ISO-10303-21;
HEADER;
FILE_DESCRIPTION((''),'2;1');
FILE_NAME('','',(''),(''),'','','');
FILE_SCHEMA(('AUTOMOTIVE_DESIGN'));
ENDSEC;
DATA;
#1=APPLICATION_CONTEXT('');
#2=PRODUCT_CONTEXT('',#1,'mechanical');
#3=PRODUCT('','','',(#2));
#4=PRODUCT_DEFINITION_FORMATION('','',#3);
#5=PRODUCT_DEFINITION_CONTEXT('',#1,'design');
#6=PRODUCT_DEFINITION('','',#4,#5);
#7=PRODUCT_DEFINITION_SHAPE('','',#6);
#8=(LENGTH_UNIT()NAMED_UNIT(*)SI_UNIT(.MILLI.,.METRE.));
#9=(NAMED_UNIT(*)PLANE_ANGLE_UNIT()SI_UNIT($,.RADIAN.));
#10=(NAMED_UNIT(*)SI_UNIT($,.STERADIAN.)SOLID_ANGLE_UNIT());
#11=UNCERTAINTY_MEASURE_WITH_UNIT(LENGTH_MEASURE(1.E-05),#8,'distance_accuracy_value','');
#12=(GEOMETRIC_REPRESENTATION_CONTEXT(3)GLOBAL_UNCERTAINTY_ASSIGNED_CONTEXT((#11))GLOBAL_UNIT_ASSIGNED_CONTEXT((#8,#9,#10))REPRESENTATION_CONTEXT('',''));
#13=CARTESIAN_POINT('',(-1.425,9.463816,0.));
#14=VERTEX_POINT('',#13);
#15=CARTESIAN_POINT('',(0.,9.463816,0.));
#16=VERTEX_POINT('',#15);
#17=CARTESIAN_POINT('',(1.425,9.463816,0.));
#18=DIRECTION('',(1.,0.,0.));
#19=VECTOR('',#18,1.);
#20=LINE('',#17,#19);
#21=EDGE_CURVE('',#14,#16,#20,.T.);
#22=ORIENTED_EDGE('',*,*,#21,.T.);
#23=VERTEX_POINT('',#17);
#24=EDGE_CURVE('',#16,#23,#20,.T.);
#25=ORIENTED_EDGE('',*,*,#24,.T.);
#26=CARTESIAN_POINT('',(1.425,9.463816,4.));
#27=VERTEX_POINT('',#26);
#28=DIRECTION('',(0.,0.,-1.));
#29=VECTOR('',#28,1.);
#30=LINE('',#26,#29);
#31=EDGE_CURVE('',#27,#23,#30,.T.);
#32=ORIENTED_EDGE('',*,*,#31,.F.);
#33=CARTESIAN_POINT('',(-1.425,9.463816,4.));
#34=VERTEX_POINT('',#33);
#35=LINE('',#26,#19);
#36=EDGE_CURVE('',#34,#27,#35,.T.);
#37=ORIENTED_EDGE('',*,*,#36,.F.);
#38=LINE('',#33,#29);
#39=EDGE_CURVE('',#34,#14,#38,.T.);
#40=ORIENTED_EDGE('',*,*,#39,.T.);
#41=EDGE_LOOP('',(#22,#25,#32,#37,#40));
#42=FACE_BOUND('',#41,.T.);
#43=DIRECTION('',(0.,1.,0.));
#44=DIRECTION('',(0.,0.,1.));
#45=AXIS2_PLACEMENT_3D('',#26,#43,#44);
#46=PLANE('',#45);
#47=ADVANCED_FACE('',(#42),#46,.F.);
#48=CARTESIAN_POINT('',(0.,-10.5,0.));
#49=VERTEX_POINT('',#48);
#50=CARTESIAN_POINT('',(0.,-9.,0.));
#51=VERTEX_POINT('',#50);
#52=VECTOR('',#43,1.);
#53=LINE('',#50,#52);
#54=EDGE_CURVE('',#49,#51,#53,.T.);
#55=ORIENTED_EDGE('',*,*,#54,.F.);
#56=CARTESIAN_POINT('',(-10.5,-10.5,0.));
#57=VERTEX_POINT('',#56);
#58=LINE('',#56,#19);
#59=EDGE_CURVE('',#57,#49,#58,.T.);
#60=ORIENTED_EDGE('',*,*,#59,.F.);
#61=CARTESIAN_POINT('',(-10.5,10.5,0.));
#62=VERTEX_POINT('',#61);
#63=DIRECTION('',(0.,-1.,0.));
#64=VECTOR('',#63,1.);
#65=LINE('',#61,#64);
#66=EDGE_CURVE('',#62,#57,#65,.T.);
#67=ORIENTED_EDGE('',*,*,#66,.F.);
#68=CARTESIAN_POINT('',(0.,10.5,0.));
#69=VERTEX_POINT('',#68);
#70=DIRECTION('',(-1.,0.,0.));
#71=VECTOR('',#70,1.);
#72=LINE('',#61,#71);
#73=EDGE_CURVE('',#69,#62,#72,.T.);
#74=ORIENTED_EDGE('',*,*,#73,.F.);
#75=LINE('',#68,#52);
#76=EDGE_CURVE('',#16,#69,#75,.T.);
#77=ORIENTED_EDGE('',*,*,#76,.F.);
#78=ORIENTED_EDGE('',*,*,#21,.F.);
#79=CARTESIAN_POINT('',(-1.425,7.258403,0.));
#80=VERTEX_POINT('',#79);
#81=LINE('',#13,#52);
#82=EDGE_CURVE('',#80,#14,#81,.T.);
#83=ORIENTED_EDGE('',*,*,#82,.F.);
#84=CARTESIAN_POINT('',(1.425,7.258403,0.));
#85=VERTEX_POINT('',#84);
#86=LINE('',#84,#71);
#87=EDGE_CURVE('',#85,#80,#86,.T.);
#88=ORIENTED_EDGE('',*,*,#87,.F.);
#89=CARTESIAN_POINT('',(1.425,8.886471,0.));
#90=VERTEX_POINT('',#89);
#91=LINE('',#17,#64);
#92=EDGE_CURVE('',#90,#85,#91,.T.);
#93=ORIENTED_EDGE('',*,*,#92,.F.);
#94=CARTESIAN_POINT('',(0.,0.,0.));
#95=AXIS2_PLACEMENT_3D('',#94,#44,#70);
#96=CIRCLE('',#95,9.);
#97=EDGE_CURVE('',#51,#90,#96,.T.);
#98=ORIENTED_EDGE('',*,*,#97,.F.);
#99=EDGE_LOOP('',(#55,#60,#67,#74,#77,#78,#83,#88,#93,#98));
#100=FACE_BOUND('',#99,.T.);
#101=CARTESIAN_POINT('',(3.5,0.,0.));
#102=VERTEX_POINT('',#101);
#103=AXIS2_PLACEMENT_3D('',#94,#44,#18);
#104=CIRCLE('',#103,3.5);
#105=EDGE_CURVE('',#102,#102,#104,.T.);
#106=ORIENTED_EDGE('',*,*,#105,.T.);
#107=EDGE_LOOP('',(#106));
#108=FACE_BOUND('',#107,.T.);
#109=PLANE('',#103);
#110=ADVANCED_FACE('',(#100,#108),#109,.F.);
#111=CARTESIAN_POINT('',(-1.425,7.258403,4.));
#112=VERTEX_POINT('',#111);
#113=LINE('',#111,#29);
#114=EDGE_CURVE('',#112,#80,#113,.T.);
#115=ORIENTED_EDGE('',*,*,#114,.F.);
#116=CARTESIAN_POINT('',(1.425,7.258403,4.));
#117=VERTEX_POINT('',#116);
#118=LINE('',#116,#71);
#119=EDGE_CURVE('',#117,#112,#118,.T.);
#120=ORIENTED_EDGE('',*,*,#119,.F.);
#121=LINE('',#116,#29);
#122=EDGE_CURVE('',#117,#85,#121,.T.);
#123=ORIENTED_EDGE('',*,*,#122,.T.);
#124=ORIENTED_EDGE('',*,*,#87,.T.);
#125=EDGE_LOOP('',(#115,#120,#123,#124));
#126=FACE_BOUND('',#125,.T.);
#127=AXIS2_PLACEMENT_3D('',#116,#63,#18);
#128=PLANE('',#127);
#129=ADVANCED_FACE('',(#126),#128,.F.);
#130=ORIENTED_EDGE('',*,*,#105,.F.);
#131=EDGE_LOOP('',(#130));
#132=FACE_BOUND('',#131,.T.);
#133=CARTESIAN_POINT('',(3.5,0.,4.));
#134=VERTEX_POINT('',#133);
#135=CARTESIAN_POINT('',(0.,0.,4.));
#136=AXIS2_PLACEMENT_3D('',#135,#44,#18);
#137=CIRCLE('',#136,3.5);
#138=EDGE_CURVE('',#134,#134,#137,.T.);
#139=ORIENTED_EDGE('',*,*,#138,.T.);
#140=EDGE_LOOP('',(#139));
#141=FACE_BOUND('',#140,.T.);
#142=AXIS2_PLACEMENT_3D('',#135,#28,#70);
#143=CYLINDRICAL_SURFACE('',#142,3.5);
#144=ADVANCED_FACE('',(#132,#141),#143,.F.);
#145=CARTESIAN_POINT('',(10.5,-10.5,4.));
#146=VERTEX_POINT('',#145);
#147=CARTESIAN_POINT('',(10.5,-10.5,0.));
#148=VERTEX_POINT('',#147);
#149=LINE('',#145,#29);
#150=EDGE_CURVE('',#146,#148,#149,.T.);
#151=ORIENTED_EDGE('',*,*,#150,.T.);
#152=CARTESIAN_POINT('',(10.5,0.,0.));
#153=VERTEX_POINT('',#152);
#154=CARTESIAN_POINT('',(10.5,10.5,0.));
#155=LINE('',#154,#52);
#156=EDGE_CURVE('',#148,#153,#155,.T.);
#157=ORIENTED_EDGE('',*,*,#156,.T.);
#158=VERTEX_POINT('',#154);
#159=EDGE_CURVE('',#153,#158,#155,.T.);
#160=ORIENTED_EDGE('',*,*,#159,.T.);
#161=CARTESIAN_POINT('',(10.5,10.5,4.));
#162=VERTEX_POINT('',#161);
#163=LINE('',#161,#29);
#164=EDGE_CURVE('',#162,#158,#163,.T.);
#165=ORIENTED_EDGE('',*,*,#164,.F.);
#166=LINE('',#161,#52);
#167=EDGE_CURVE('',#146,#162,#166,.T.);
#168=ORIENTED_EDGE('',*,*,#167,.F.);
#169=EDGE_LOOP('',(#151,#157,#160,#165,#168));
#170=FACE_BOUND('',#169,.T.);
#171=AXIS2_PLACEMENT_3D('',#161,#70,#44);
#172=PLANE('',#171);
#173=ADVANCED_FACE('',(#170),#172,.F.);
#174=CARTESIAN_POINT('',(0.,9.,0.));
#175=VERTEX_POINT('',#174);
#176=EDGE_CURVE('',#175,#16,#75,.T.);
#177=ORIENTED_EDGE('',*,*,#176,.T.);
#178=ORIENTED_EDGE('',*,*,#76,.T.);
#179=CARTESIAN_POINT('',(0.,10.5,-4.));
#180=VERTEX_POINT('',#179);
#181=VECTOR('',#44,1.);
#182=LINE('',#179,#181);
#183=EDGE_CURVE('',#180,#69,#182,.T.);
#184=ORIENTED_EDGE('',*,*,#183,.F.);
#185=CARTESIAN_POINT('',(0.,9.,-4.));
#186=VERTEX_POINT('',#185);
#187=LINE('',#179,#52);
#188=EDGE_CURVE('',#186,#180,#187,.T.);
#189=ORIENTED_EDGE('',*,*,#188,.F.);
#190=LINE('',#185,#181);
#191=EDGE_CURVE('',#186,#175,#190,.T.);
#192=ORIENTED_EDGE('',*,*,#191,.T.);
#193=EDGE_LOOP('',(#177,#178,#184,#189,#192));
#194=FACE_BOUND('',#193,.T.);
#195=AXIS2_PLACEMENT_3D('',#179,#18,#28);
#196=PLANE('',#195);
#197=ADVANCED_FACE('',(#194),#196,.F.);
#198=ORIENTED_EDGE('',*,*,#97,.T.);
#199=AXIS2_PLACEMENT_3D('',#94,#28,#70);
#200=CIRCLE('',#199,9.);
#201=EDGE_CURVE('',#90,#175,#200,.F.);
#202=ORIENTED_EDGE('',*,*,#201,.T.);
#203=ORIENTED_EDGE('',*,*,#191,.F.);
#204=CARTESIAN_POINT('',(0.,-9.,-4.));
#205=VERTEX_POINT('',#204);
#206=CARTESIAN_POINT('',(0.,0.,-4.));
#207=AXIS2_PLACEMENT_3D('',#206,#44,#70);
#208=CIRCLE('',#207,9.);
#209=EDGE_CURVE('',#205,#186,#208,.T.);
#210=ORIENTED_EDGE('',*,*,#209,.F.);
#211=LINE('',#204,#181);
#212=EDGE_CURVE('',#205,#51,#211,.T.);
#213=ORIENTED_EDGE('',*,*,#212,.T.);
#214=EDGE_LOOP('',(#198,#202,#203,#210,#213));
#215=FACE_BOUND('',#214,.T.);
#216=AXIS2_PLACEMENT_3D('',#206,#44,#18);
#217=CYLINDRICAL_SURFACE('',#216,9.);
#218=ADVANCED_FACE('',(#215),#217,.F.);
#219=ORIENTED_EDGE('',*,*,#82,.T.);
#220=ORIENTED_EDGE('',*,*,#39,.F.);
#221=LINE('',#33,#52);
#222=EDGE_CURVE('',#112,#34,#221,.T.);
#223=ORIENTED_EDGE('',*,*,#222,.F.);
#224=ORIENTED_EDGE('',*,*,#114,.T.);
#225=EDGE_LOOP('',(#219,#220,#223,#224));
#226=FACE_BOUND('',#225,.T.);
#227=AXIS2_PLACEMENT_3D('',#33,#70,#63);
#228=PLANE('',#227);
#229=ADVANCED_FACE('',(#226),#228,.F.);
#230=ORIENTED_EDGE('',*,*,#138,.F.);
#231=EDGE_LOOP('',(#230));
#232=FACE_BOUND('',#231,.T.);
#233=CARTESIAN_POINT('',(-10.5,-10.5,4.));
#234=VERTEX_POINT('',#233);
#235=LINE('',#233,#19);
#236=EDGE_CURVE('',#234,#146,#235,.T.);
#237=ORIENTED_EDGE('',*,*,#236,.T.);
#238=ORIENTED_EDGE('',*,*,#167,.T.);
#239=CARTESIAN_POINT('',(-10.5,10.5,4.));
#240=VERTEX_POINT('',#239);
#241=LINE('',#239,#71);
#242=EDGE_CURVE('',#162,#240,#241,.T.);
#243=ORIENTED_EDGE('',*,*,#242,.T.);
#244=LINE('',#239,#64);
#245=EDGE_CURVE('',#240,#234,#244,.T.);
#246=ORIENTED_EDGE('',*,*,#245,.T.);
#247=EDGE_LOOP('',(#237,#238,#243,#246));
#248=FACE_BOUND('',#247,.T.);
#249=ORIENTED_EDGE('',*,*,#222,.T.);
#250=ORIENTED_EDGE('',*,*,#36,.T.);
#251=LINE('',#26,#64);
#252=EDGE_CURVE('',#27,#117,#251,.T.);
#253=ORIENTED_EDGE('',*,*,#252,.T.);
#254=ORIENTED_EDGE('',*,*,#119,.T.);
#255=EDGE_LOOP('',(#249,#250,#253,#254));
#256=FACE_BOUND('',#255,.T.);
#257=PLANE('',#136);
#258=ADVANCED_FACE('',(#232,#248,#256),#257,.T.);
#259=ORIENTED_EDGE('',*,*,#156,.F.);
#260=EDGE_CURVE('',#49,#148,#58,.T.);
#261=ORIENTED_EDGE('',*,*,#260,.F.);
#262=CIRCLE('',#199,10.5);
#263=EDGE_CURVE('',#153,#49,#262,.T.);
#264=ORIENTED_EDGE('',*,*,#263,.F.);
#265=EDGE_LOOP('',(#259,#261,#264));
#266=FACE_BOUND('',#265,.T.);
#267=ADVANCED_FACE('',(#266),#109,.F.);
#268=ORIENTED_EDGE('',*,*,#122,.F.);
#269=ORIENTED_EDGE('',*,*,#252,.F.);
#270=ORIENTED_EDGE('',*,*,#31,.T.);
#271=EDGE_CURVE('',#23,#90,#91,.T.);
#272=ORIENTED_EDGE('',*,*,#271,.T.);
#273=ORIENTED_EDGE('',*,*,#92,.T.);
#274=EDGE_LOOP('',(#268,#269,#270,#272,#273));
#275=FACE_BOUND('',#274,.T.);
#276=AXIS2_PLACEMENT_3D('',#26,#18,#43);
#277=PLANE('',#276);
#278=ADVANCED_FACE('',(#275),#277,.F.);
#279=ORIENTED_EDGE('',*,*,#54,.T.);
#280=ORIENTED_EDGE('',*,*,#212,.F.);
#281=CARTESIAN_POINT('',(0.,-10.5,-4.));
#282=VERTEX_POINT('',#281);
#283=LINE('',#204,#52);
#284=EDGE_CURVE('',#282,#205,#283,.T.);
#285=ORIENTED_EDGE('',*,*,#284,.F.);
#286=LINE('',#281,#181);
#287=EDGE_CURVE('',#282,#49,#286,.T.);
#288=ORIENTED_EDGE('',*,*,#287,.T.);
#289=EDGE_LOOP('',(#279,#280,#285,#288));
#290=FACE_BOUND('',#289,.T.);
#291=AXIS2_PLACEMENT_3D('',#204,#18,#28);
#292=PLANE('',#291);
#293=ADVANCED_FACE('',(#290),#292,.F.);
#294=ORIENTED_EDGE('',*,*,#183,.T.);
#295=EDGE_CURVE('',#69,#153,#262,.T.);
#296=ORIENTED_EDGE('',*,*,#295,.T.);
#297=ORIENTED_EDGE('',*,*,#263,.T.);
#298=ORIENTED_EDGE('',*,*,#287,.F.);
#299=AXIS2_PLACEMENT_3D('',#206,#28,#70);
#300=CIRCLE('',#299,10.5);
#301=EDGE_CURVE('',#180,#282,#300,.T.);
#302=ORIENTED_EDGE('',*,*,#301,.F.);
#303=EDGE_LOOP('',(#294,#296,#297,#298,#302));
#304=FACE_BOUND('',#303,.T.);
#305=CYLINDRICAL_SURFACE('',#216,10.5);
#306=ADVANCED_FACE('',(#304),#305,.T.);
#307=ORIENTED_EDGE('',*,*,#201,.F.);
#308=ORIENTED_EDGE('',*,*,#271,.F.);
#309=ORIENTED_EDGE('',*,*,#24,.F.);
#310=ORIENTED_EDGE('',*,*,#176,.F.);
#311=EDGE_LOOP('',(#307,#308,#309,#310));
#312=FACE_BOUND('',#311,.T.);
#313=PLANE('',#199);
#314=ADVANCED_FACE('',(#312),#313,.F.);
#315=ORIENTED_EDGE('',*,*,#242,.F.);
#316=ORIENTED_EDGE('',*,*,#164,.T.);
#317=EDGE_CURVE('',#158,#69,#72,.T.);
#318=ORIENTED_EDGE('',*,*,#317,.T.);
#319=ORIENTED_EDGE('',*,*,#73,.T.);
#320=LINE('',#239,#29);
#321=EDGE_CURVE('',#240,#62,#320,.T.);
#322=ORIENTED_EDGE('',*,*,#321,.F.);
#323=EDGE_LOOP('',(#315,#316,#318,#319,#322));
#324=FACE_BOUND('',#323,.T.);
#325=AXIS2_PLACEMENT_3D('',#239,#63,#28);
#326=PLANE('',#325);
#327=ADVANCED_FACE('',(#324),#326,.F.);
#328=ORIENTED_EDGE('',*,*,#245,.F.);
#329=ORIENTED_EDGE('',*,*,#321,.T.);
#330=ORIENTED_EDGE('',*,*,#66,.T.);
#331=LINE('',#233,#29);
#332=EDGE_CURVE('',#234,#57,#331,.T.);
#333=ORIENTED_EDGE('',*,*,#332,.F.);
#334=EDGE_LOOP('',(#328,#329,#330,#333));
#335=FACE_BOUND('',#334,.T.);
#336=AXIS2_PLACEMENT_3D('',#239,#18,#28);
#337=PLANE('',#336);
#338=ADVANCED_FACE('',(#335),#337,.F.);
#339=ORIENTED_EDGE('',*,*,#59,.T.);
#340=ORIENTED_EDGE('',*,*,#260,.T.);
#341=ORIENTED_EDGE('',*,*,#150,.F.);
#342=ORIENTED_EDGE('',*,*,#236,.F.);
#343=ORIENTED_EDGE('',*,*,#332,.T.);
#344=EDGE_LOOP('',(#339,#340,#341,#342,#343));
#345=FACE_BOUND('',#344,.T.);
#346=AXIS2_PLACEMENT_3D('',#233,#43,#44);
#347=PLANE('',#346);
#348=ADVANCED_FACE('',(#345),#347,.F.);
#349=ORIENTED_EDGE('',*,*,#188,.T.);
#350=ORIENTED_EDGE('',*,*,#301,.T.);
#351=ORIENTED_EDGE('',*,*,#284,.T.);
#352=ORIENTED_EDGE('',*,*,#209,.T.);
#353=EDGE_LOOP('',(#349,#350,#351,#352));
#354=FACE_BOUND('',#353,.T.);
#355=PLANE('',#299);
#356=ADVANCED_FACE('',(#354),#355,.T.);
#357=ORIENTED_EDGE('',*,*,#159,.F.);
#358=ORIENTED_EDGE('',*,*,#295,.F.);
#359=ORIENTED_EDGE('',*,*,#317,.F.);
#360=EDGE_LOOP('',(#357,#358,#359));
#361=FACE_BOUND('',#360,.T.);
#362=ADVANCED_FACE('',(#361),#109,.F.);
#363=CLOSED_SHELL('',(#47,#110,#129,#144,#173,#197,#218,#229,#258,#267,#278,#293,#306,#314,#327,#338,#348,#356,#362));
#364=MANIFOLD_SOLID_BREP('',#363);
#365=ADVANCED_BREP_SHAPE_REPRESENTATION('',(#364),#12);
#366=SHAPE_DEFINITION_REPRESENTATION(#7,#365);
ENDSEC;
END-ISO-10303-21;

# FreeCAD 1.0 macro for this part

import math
import FreeCAD as App
import Part
import Sketcher
from FreeCAD import Vector
Q = App.Units.Quantity


def add_polygon(sketch, points):
    """Adds a closed chain of lines whose ends are joined by coincident constraints."""
    first, n = sketch.GeometryCount, len(points)
    for a, b in zip(points, points[1:] + points[:1]):
        sketch.addGeometry(Part.LineSegment(App.Vector(*a, 0), App.Vector(*b, 0)), False)
    for i in range(n):
        sketch.addConstraint(Sketcher.Constraint("Coincident", first + i, 2, first + (i + 1) % n, 1))

doc = App.newDocument("Part")
body = doc.addObject("PartDesign::Body", "Body")

# Sketch on XY plane
sketch1 = body.newObject("Sketcher::SketchObject", "Sketch")
sketch1.AttachmentSupport = (doc.getObject("XY_Plane"), [""])
sketch1.MapMode = "FlatFace"
add_polygon(sketch1, [(-10.5, 10.5), (-10.5, -10.5), (10.5, -10.5), (10.5, 10.5)])  # lines 0-3
sketch1.addGeometry(Part.Circle(Vector(0, 0, 0), Vector(0, 0, 1), 3.5), False)  # 4
sketch1.addConstraint([
    Sketcher.Constraint("Vertical", 0),
    Sketcher.Constraint("Horizontal", 1),
    Sketcher.Constraint("Vertical", 2),
    Sketcher.Constraint("Horizontal", 3),
    Sketcher.Constraint("Coincident", 4, 3, -1, 1),
    Sketcher.Constraint("Symmetric", 0, 2, 2, 2, -1, 1),
    Sketcher.Constraint("Equal", 3, 0),
    Sketcher.Constraint("Diameter", 4, Q("7 mm")),
    Sketcher.Constraint("DistanceX", 1, 1, 1, 2, Q("21 mm")),
])
pad1 = body.newObject("PartDesign::Pad", "Pad")
pad1.Profile = sketch1
pad1.Length = 4

# Sketch on XY plane
sketch2 = body.newObject("Sketcher::SketchObject", "Sketch001")
sketch2.AttachmentSupport = (doc.getObject("XY_Plane"), [""])
sketch2.MapMode = "FlatFace"
sketch2.addGeometry([
    Part.LineSegment(Vector(0, 9, 0), Vector(0, 10.5, 0)),
    Part.ArcOfCircle(Part.Circle(Vector(0, 0, 0), Vector(0, 0, 1), 10.5), math.radians(-90), math.radians(90)),
    Part.LineSegment(Vector(0, -10.5, 0), Vector(0, -9, 0)),
    Part.ArcOfCircle(Part.Circle(Vector(0, 0, 0), Vector(0, 0, 1), 9), math.radians(-90), math.radians(90)),
], False)
sketch2.addConstraint([
    Sketcher.Constraint("Coincident", 0, 2, 1, 2),
    Sketcher.Constraint("Coincident", 1, 1, 2, 1),
    Sketcher.Constraint("Coincident", 2, 2, 3, 1),
    Sketcher.Constraint("Coincident", 3, 2, 0, 1),
    Sketcher.Constraint("Vertical", 0),
    Sketcher.Constraint("Vertical", 2),
    Sketcher.Constraint("Coincident", 1, 3, -1, 1),
    Sketcher.Constraint("Coincident", 3, 3, -1, 1),
    Sketcher.Constraint("PointOnObject", 0, 2, -2),
    Sketcher.Constraint("PointOnObject", 1, 1, -2),
    Sketcher.Constraint("Radius", 3, Q("9 mm")),
    Sketcher.Constraint("Radius", 1, Q("10.5 mm")),
])
pad2 = body.newObject("PartDesign::Pad", "Pad001")
pad2.Profile = sketch2
pad2.Length = 4
pad2.Reversed = True

# Sketch on XY plane
sketch3 = body.newObject("Sketcher::SketchObject", "Sketch002")
sketch3.AttachmentSupport = (doc.getObject("XY_Plane"), [""])
sketch3.MapMode = "FlatFace"
add_polygon(sketch3, [(1.4, 9.5), (1.4, 7.3), (-1.4, 7.3), (-1.4, 9.5)])  # lines 0-3
sketch3.addConstraint([
    Sketcher.Constraint("Vertical", 0),
    Sketcher.Constraint("Horizontal", 1),
    Sketcher.Constraint("Vertical", 2),
    Sketcher.Constraint("Horizontal", 3),
    Sketcher.Constraint("DistanceX", 1, 2, 1, 1, Q("2.85 mm")),
    Sketcher.Constraint("DistanceX", -1, 1, 0, 2, Q("1.425 mm")),
    Sketcher.Constraint("DistanceY", 0, 2, 0, 1, Q("2.205413 mm")),
    Sketcher.Constraint("DistanceY", -1, 1, 0, 2, Q("7.258403 mm")),
])
pocket1 = body.newObject("PartDesign::Pocket", "Pocket")
pocket1.Profile = sketch3
pocket1.Length = 4
pocket1.Reversed = True

doc.recompute()
